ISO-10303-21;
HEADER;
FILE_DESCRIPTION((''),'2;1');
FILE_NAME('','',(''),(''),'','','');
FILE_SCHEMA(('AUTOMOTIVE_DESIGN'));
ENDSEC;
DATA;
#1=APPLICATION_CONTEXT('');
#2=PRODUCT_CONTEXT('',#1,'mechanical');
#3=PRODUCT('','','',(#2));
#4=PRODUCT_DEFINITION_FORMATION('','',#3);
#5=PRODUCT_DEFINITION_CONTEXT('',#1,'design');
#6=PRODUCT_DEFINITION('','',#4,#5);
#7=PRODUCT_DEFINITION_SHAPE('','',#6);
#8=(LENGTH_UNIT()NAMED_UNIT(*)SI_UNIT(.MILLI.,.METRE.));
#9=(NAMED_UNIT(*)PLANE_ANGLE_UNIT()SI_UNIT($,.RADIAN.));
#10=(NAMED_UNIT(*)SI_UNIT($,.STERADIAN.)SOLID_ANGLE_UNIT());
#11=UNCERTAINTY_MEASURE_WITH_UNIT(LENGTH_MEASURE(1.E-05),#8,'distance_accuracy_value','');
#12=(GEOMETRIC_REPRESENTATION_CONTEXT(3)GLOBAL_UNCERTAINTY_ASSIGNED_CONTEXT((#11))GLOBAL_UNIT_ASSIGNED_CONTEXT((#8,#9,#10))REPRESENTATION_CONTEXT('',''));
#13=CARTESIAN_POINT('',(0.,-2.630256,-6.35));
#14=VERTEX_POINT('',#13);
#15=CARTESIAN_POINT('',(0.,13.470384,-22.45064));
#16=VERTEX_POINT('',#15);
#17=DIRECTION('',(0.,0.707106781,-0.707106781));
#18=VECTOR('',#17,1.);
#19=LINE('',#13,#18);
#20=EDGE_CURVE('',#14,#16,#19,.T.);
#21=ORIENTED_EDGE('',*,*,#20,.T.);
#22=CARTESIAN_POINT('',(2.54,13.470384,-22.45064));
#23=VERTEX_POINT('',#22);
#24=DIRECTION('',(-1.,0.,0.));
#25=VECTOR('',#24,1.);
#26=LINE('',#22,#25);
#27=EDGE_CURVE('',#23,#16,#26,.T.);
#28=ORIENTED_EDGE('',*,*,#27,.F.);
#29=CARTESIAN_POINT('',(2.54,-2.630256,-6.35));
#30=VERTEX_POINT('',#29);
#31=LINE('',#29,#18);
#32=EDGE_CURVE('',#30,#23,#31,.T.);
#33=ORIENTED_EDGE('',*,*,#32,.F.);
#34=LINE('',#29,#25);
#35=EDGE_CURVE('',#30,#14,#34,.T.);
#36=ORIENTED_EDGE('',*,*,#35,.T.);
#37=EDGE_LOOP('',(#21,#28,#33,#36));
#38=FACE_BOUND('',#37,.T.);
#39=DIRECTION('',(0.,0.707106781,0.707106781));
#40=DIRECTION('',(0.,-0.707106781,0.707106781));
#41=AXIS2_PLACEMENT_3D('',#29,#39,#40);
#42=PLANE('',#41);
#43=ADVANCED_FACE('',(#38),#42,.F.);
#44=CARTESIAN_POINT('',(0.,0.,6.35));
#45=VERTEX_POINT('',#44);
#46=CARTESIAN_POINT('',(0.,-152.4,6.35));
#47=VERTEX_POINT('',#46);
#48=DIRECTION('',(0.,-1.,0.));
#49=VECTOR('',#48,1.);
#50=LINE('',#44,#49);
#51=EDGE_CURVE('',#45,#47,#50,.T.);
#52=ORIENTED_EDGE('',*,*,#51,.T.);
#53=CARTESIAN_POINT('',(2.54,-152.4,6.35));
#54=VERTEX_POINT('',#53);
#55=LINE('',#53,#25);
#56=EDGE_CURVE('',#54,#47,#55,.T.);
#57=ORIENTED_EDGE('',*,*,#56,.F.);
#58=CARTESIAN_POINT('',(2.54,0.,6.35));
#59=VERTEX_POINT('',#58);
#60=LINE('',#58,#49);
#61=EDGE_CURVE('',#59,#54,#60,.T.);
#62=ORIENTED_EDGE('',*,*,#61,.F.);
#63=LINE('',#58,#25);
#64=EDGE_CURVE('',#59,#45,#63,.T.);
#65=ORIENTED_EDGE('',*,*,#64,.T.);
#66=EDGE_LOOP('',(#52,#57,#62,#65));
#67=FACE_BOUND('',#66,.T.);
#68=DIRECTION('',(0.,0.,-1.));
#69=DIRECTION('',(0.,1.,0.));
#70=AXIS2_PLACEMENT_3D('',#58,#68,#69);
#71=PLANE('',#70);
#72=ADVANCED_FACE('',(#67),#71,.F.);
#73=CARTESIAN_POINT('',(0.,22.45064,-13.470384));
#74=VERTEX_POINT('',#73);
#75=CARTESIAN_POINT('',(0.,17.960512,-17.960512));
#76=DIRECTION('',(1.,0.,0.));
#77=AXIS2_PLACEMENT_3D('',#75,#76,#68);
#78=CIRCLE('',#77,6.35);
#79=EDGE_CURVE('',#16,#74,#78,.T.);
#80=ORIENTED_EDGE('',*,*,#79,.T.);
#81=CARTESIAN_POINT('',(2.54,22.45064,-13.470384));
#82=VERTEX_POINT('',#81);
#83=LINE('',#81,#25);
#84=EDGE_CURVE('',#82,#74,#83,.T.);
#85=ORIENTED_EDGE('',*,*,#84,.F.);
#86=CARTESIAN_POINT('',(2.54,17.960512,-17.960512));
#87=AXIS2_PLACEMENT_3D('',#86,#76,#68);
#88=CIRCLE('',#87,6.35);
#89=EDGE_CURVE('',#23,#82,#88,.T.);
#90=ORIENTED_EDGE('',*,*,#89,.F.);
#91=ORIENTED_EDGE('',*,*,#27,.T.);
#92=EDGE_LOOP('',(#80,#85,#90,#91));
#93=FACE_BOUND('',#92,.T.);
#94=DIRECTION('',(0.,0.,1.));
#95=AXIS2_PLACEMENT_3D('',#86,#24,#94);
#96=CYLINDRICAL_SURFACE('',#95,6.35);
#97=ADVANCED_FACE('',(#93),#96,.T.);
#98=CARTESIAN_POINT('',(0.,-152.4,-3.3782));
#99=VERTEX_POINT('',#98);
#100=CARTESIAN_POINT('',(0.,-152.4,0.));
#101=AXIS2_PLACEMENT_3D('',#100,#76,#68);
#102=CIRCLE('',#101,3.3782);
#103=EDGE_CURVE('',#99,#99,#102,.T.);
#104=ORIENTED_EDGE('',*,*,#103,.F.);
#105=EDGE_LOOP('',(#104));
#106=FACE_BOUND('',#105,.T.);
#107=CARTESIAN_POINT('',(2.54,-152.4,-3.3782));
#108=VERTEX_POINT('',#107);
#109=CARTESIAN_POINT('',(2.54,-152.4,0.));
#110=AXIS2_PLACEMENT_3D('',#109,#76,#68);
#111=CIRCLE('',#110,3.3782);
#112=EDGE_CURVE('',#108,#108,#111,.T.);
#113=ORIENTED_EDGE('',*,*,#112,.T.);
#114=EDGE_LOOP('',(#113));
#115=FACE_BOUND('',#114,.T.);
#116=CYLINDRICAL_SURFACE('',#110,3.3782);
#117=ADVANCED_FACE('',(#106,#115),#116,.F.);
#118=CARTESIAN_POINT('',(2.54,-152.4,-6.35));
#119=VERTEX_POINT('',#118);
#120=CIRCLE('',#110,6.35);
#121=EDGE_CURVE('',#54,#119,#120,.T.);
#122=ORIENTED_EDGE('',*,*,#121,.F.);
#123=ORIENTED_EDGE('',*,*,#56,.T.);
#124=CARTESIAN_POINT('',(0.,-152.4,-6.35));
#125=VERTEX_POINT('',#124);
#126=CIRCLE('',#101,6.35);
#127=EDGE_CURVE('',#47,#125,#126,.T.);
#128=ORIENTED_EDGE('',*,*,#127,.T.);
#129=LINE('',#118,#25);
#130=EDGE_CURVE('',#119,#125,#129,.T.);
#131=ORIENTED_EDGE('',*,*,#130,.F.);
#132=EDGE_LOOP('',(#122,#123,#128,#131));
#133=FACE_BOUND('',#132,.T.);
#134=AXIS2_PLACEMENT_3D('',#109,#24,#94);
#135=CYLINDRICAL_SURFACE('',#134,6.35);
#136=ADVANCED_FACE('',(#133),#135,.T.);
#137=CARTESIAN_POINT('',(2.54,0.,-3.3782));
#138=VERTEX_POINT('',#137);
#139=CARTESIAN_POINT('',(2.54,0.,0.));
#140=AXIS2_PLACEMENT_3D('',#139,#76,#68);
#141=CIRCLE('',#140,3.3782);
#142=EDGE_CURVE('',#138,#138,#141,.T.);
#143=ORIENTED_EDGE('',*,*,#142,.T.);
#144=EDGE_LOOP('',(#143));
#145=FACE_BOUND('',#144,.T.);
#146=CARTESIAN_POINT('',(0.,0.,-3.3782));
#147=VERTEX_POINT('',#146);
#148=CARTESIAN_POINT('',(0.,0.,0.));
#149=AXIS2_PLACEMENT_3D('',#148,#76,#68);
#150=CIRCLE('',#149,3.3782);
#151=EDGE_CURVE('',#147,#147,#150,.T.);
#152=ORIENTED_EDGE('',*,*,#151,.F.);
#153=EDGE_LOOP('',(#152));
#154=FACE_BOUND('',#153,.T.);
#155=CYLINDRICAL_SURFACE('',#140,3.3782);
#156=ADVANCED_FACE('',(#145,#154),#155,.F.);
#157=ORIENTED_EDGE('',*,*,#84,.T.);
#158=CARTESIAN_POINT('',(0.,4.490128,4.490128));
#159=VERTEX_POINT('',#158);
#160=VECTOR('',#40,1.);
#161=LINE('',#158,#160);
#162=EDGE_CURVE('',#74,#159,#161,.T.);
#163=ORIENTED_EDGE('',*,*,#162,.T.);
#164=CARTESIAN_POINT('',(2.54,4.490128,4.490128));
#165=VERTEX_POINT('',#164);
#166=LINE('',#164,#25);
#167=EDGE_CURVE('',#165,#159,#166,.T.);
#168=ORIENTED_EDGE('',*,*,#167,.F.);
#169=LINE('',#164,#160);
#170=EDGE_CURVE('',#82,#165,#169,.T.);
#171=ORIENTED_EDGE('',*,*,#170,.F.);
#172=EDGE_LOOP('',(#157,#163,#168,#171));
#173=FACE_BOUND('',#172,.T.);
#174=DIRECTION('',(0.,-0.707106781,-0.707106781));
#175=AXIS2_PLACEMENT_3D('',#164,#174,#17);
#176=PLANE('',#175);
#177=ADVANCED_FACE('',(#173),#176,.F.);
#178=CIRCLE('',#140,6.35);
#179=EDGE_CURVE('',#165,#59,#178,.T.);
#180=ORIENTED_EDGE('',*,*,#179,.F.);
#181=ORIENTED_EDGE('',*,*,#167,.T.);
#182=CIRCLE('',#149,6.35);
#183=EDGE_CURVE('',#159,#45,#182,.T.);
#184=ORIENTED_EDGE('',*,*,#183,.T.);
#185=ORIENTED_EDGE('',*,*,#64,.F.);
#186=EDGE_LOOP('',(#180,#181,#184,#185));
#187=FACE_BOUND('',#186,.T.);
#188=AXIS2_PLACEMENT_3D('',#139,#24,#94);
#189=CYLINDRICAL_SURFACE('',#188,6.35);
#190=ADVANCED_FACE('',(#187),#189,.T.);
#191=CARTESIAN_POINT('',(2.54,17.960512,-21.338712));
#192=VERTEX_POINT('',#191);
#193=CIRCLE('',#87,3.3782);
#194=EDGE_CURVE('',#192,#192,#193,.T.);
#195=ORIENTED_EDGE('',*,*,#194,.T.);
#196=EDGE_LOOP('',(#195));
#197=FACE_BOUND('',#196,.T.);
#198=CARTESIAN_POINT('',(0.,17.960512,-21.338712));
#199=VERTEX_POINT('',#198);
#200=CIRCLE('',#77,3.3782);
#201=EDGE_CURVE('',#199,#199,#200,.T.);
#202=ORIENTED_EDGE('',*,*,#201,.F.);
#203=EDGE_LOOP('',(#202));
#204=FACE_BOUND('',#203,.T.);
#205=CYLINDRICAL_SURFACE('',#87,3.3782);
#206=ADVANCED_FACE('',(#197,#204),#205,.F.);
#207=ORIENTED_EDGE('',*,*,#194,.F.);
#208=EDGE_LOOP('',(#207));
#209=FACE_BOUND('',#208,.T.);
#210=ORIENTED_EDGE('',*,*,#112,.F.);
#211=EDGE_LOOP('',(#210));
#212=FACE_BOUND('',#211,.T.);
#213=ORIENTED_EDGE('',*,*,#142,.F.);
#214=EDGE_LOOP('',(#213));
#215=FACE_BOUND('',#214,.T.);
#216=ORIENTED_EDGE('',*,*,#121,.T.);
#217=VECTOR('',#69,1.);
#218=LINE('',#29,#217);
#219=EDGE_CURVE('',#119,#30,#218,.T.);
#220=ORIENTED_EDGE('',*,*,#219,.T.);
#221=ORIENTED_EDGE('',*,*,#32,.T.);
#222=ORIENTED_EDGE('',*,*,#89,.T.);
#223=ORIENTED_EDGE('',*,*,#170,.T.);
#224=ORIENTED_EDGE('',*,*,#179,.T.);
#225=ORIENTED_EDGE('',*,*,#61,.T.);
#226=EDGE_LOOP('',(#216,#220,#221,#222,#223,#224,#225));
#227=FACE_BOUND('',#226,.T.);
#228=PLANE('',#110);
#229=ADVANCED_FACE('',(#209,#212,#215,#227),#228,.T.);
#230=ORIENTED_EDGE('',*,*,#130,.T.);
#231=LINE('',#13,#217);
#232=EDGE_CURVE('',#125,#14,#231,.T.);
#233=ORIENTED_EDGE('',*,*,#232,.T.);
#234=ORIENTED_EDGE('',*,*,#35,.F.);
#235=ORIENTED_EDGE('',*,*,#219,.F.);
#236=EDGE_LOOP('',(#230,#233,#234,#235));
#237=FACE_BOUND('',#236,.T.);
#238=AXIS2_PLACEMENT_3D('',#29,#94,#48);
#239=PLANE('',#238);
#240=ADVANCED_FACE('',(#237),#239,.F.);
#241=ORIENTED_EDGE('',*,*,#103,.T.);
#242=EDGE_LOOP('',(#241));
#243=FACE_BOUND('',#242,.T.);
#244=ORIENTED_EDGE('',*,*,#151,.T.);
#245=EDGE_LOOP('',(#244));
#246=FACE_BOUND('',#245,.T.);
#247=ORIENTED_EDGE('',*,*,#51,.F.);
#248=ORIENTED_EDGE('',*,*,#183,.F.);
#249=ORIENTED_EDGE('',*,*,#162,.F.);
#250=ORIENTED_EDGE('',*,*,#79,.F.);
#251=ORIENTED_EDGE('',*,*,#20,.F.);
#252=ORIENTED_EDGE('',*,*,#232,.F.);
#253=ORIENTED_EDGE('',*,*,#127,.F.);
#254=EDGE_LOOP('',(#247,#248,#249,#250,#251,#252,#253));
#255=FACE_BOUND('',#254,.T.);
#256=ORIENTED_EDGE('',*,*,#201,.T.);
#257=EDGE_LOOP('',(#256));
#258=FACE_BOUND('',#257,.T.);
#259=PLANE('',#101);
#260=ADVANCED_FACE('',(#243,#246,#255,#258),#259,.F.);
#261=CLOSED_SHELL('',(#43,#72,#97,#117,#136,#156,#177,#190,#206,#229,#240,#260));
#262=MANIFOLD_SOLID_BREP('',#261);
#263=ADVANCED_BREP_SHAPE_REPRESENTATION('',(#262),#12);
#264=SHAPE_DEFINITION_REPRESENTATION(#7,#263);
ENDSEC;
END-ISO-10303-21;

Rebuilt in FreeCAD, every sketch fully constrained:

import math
import FreeCAD as App
import Part
import Sketcher

V = App.Vector
Q = App.Units.Quantity

doc = App.newDocument("Part")
params = doc.addObject("Spreadsheet::Sheet", "Params")
for row, (alias, value) in enumerate([
    ("sketch1_width", "6 in"),
    ("sketch1_radius", "0.25 in"),
    ("sketch1_length", "1 in"),
    ("pad1_length", "0.1 in"),
    ("sketch2_diameter", "0.266 in"),
    ("hole_diameter", "0.266 in"),
    ("hole_depth", "0.33 in"),
], start=1):
    params.set(f"A{row}", alias)
    params.set(f"B{row}", "=" + value)
    params.setAlias(f"B{row}", alias)

body = doc.addObject("PartDesign::Body", "Body")

# Sketch on YZ plane
sketch1 = body.newObject("Sketcher::SketchObject", "Sketch")
sketch1.AttachmentSupport = (doc.getObject("YZ_Plane"), [""])
sketch1.MapMode = "FlatFace"
sketch1.addGeometry(Part.LineSegment(V(-152.4, -6.35, 0), V(-2.630256, -6.35, 0)), False)
sketch1.addGeometry(Part.LineSegment(V(-2.630256, -6.35, 0), V(13.470384, -22.45064, 0)), False)
sketch1.addGeometry(Part.ArcOfCircle(Part.Circle(V(17.960512, -17.960512, 0), V(0, 0, 1), 6.35), math.radians(-135), math.radians(45)), False)
sketch1.addGeometry(Part.LineSegment(V(22.45064, -13.470384, 0), V(4.490128, 4.490128, 0)), False)
sketch1.addGeometry(Part.ArcOfCircle(Part.Circle(V(0, 0, 0), V(0, 0, 1), 6.35), math.radians(45), math.radians(90)), False)
sketch1.addGeometry(Part.LineSegment(V(0, 6.35, 0), V(-152.4, 6.35, 0)), False)
sketch1.addGeometry(Part.ArcOfCircle(Part.Circle(V(-152.4, 0, 0), V(0, 0, 1), 6.35), math.radians(90), math.radians(270)), False)
sketch1.addConstraint(Sketcher.Constraint("Coincident", 0, 2, 1, 1))
sketch1.addConstraint(Sketcher.Constraint("Tangent", 1, 2, 2, 1))
sketch1.addConstraint(Sketcher.Constraint("Tangent", 2, 2, 3, 1))
sketch1.addConstraint(Sketcher.Constraint("Tangent", 3, 2, 4, 1))
sketch1.addConstraint(Sketcher.Constraint("Tangent", 4, 2, 5, 1))
sketch1.addConstraint(Sketcher.Constraint("Tangent", 5, 2, 6, 1))
sketch1.addConstraint(Sketcher.Constraint("Tangent", 6, 2, 0, 1))
sketch1.addConstraint(Sketcher.Constraint("Horizontal", 0))
sketch1.addConstraint(Sketcher.Constraint("Horizontal", 5))
sketch1.addConstraint(Sketcher.Constraint("Coincident", 4, 3, -1, 1))
sketch1.addConstraint(Sketcher.Constraint("Equal", 2, 4))
sketch1.addConstraint(Sketcher.Constraint("Equal", 4, 6))
sketch1.addConstraint(Sketcher.Constraint("Parallel", 1, 3))
sketch1.addConstraint(Sketcher.Constraint("DistanceX", 5, 2, 5, 1, Q("6 in")))
sketch1.addConstraint(Sketcher.Constraint("Radius", 2, Q("0.25 in")))
sketch1.addConstraint(Sketcher.Constraint("Distance", 3, Q("1 in")))
sketch1.addConstraint(Sketcher.Constraint("Angle", 1, Q("-45 deg")))
sketch1.setExpression("Constraints[13]", "Params.sketch1_width")
sketch1.setExpression("Constraints[14]", "Params.sketch1_radius")
sketch1.setExpression("Constraints[15]", "Params.sketch1_length")
pad1 = body.newObject("PartDesign::Pad", "Pad")
pad1.Profile = sketch1
pad1.setExpression("Length", "Params.pad1_length")

# Sketch on YZ plane
sketch2 = body.newObject("Sketcher::SketchObject", "Sketch001")
sketch2.AttachmentSupport = (doc.getObject("YZ_Plane"), [""])
sketch2.MapMode = "FlatFace"
sketch2.AttachmentOffset = App.Placement(V(0, 0, 0.1 * 25.4), App.Rotation())
sketch2.addGeometry(Part.Circle(V(0, 0, 0), V(0, 0, 1), 3.3782), False)
sketch2.addGeometry(Part.Circle(V(-152.4, 0, 0), V(0, 0, 1), 3.3782), False)
sketch2.addGeometry(Part.Circle(V(17.960512, -17.960512, 0), V(0, 0, 1), 3.3782), False)
sketch2.addConstraint(Sketcher.Constraint("Coincident", 0, 3, -1, 1))
sketch2.addConstraint(Sketcher.Constraint("Equal", 0, 1))
sketch2.addConstraint(Sketcher.Constraint("Equal", 1, 2))
sketch2.addConstraint(Sketcher.Constraint("PointOnObject", 1, 3, -1))
sketch2.addConstraint(Sketcher.Constraint("Diameter", 0, Q("0.266 in")))
sketch2.addConstraint(Sketcher.Constraint("DistanceX", 1, 3, -1, 1, Q("6 in")))
sketch2.addConstraint(Sketcher.Constraint("DistanceX", -1, 1, 2, 3, Q("17.960512 mm")))
sketch2.addConstraint(Sketcher.Constraint("DistanceY", 2, 3, -1, 1, Q("17.960512 mm")))
sketch2.setExpression("Constraints[4]", "Params.sketch2_diameter")
doc.recompute()
hole = body.newObject("PartDesign::Hole", "Hole")
hole.Profile = sketch2
hole.ThreadType = "None"
hole.setExpression("Diameter", "Params.hole_diameter")
hole.DepthType = "Dimension"
hole.setExpression("Depth", "Params.hole_depth")
hole.DrillPoint = "Angled"
hole.DrillPointAngle = 118

doc.recompute()
